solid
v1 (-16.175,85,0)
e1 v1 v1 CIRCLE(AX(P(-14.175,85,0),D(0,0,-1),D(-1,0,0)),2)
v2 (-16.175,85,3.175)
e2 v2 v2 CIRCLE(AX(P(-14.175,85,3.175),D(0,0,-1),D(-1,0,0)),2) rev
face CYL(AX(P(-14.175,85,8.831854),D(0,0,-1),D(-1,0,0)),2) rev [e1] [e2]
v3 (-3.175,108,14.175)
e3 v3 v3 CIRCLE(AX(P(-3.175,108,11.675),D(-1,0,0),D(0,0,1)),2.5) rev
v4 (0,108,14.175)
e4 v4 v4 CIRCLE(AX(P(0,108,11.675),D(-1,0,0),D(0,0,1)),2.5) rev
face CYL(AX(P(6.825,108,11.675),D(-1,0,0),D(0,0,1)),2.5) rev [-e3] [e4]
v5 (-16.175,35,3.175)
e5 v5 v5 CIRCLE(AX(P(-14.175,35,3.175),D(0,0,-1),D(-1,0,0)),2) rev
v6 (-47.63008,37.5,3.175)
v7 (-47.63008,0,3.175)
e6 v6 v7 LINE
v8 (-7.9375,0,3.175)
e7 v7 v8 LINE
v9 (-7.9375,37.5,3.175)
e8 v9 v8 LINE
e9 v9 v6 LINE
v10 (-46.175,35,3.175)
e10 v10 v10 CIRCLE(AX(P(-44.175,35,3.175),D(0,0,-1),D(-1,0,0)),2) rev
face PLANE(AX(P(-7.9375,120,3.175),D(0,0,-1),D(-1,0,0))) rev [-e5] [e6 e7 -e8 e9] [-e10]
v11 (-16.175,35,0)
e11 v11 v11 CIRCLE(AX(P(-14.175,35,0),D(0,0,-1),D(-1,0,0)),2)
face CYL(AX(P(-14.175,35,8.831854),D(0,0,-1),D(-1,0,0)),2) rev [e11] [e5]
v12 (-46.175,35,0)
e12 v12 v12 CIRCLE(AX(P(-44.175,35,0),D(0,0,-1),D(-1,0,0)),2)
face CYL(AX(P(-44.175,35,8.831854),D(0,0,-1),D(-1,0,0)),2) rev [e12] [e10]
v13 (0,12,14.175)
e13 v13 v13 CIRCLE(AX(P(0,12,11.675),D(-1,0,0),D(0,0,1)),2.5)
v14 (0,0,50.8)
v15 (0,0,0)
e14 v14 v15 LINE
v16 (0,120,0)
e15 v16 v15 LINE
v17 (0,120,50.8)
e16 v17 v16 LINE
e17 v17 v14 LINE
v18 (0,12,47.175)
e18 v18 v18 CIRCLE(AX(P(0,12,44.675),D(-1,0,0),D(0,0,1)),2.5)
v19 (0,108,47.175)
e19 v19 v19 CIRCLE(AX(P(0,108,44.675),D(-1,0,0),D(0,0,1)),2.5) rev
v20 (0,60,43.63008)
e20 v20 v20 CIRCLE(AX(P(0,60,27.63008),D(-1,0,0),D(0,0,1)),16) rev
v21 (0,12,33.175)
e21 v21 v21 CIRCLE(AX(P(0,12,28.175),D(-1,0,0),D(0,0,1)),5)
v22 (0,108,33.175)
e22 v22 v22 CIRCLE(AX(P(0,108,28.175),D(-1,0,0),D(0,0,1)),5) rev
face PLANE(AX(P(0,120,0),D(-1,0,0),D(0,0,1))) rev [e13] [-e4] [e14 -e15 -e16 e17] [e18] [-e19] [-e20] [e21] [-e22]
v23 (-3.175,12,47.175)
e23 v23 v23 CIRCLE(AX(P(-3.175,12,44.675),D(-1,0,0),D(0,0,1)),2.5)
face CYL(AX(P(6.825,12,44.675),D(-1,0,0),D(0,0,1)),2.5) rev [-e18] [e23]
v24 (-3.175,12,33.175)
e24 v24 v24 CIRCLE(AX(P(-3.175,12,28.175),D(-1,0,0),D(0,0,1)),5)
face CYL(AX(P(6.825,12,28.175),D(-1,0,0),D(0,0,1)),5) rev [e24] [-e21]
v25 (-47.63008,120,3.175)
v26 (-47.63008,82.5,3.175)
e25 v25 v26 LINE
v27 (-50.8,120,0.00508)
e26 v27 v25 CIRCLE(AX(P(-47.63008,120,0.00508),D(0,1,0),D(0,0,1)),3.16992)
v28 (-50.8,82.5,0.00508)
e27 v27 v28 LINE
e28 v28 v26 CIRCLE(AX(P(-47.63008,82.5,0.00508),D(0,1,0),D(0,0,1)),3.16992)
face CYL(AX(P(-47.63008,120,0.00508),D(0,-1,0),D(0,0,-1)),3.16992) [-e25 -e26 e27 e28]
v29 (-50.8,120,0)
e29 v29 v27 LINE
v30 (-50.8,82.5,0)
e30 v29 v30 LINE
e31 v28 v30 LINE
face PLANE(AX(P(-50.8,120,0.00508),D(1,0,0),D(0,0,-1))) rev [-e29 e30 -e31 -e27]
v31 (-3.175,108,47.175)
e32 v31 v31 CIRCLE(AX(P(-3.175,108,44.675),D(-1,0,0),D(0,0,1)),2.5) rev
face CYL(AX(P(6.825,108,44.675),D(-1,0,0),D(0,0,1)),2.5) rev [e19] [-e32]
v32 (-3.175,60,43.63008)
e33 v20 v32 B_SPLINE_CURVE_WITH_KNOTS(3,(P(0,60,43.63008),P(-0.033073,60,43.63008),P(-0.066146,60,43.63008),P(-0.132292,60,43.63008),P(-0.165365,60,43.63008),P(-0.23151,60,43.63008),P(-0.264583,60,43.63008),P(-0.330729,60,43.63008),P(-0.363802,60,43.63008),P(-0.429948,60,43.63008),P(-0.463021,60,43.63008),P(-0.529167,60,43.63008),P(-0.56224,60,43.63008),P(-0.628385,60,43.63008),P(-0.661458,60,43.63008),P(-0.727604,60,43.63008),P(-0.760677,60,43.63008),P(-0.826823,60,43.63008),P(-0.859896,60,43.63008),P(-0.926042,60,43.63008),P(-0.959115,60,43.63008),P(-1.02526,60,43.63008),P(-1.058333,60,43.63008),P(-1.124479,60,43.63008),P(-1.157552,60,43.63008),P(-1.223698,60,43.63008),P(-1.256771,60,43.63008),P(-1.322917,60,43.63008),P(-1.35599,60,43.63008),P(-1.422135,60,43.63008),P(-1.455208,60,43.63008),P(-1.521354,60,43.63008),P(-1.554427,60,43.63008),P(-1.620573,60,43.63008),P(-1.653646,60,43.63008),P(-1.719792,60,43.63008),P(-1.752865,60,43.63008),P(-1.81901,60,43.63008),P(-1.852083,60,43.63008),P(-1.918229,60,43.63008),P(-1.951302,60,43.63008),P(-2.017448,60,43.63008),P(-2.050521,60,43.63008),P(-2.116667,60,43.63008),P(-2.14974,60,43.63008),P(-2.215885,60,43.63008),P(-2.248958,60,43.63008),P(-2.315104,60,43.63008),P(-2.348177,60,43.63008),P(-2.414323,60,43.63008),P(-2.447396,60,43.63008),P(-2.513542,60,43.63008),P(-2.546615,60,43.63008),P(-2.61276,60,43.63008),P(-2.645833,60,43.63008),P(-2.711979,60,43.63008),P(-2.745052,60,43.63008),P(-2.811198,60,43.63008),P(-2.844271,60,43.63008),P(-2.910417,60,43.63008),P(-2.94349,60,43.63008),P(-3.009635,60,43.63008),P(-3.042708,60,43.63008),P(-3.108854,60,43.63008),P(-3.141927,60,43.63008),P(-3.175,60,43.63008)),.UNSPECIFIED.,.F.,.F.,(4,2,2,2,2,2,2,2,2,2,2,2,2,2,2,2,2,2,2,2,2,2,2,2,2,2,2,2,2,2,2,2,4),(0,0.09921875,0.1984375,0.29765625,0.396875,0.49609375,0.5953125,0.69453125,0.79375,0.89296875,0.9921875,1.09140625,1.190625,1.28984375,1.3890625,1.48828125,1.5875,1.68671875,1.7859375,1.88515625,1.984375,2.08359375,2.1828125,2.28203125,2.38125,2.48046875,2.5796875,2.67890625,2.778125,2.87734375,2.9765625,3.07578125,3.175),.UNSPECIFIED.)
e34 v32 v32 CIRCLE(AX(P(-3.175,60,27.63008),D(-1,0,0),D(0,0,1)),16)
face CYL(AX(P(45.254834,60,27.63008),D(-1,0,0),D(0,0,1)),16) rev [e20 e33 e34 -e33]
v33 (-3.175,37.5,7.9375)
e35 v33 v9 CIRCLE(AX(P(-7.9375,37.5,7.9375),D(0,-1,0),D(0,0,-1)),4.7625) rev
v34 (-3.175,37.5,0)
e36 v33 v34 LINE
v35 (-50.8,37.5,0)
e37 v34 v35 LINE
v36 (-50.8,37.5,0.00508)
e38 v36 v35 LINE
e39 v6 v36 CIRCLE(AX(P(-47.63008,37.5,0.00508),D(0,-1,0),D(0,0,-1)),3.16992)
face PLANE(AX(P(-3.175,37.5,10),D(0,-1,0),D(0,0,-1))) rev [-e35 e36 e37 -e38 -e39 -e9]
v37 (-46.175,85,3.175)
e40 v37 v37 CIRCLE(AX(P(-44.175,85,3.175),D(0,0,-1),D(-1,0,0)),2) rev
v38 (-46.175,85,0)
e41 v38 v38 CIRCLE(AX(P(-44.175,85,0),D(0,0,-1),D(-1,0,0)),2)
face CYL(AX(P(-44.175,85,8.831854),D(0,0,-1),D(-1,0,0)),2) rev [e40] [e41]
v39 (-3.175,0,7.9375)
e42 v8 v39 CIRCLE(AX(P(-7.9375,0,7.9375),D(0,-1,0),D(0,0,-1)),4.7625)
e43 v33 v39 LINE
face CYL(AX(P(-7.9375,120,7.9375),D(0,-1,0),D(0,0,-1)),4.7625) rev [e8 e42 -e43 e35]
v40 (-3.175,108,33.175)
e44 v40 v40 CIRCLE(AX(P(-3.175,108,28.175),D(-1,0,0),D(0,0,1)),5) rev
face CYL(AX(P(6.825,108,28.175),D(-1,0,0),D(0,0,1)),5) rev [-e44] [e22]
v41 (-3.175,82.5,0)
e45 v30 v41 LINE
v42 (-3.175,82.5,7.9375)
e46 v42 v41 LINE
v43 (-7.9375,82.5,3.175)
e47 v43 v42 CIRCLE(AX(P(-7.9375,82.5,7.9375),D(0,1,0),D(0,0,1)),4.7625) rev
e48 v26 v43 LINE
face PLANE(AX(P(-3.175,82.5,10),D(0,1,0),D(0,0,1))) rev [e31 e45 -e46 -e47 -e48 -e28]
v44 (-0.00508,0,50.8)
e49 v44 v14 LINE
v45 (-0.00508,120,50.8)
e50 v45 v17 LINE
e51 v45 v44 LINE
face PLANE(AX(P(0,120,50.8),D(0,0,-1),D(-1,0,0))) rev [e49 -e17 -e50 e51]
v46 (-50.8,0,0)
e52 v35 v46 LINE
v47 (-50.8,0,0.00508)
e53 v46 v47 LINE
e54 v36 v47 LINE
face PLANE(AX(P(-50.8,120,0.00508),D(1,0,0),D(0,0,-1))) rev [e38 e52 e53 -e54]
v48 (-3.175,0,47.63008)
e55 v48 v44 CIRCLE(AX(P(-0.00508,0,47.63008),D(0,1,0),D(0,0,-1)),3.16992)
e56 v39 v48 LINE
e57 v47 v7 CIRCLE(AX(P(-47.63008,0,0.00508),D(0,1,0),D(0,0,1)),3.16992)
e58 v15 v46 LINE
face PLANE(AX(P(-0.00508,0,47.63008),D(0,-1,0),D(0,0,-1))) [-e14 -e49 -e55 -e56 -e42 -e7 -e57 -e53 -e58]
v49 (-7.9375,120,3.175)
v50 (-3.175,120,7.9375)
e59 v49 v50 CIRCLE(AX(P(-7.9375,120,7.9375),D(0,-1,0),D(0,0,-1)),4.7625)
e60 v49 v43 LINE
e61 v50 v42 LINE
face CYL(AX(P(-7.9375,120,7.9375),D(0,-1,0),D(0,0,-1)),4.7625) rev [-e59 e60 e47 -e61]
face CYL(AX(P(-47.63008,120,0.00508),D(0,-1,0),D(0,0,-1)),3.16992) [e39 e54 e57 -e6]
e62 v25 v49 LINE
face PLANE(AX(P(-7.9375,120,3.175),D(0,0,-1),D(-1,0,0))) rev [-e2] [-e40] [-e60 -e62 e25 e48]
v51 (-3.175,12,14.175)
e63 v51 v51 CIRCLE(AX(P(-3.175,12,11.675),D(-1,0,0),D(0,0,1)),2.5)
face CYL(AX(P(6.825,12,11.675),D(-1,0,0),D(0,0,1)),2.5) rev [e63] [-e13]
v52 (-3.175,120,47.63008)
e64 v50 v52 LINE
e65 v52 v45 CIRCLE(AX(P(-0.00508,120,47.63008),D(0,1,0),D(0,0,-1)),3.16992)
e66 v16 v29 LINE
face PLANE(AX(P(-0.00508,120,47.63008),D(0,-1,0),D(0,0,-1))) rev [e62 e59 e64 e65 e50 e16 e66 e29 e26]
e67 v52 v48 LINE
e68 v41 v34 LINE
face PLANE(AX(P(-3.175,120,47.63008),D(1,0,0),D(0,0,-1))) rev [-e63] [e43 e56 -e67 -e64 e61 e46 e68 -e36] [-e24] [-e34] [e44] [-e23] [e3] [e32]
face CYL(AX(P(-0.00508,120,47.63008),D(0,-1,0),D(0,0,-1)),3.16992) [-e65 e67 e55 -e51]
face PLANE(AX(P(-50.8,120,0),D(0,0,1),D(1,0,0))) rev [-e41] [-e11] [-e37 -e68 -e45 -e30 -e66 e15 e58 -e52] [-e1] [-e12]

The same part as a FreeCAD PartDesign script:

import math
import FreeCAD as App
import Part
import Sketcher

V = App.Vector
Q = App.Units.Quantity

doc = App.newDocument("Part")
params = doc.addObject("Spreadsheet::Sheet", "Params")
for row, (alias, value) in enumerate([
    ("sketch1_width", "50.8 mm"),
    ("pad1_length", "120 mm"),
    ("sketch2_height", "45 mm"),
    ("pocket1_length", "10 mm"),
    ("sketch3_diameter", "10 mm"),
    ("sketch3_diameter2", "5 mm"),
    ("pocket2_length", "10 mm"),
    ("sketch4_diameter", "32 mm"),
    ("pocket3_length", "3.175 mm"),
    ("sketch5_diameter", "4 mm"),
    ("pocket4_length", "3.175 mm"),
], start=1):
    params.set(f"A{row}", alias)
    params.set(f"B{row}", "=" + value)
    params.setAlias(f"B{row}", alias)

body = doc.addObject("PartDesign::Body", "Body")

sketch1 = doc.addObject("Sketcher::SketchObject", "Sketch")
body.addObject(sketch1)
sketch1.AttachmentSupport = (doc.XZ_Plane, [""])
sketch1.MapMode = "FlatFace"
sketch1.addGeometry([
    Part.LineSegment(V(0, 50.8, 0), V(0, 0, 0)),
    Part.LineSegment(V(0, 0, 0), V(-50.8, 0, 0)),
    Part.LineSegment(V(-50.8, 0, 0), V(-50.8, 0.00508, 0)),
    Part.ArcOfCircle(Part.Circle(V(-47.63008, 0.00508, 0), V(0, 0, 1), 3.16992), math.radians(90), math.radians(180)),
    Part.LineSegment(V(-47.63008, 3.175, 0), V(-7.9375, 3.175, 0)),
    Part.ArcOfCircle(Part.Circle(V(-7.9375, 7.9375, 0), V(0, 0, 1), 4.7625), math.radians(-90), math.radians(0)),
    Part.LineSegment(V(-3.175, 7.9375, 0), V(-3.175, 47.63008, 0)),
    Part.ArcOfCircle(Part.Circle(V(-0.00508, 47.63008, 0), V(0, 0, 1), 3.16992), math.radians(90), math.radians(180)),
    Part.LineSegment(V(-0.00508, 50.8, 0), V(0, 50.8, 0)),
], False)
sketch1.addConstraint([
    Sketcher.Constraint("Coincident", 0, 2, 1, 1),
    Sketcher.Constraint("Coincident", 1, 2, 2, 1),
    Sketcher.Constraint("Tangent", 2, 2, 3, 2),
    Sketcher.Constraint("Tangent", 3, 1, 4, 1),
    Sketcher.Constraint("Tangent", 4, 2, 5, 1),
    Sketcher.Constraint("Tangent", 5, 2, 6, 1),
    Sketcher.Constraint("Tangent", 6, 2, 7, 2),
    Sketcher.Constraint("Tangent", 7, 1, 8, 1),
    Sketcher.Constraint("Coincident", 8, 2, 0, 1),
    Sketcher.Constraint("Vertical", 0),
    Sketcher.Constraint("Horizontal", 1),
    Sketcher.Constraint("Horizontal", 4),
    Sketcher.Constraint("Vertical", 6),
    Sketcher.Constraint("Coincident", 0, 2, -1, 1),
    Sketcher.Constraint("Equal", 3, 7),
    Sketcher.Constraint("Horizontal", 3, 3, 2, 2),
    Sketcher.Constraint("Equal", 1, 0),
    Sketcher.Constraint("Equal", 8, 2),
    Sketcher.Constraint("Equal", 4, 6),
    Sketcher.Constraint("DistanceX", 1, 2, 1, 1, Q("50.8 mm")),
    Sketcher.Constraint("Radius", 5, Q("4.7625 mm")),
    Sketcher.Constraint("Radius", 3, Q("3.16992 mm")),
    Sketcher.Constraint("DistanceY", -1, 1, 3, 1, Q("3.175 mm")),
])
sketch1.setExpression("Constraints[19]", "Params.sketch1_width")
pad1 = doc.addObject("PartDesign::Pad", "Pad")
body.addObject(pad1)
pad1.Profile = sketch1
pad1.setExpression("Length", "Params.pad1_length")
pad1.Reversed = True

sketch2 = doc.addObject("Sketcher::SketchObject", "Sketch001")
body.addObject(sketch2)
sketch2.AttachmentSupport = (doc.XY_Plane, [""])
sketch2.MapMode = "FlatFace"
sketch2.addGeometry([
    Part.LineSegment(V(-3.175, 82.5, 0), V(-3.175, 37.5, 0)),
    Part.LineSegment(V(-3.175, 37.5, 0), V(-50.8, 37.5, 0)),
    Part.LineSegment(V(-50.8, 37.5, 0), V(-50.8, 82.5, 0)),
    Part.LineSegment(V(-50.8, 82.5, 0), V(-3.175, 82.5, 0)),
], False)
sketch2.addConstraint([
    Sketcher.Constraint("Coincident", 0, 2, 1, 1),
    Sketcher.Constraint("Coincident", 1, 2, 2, 1),
    Sketcher.Constraint("Coincident", 2, 2, 3, 1),
    Sketcher.Constraint("Coincident", 3, 2, 0, 1),
    Sketcher.Constraint("Vertical", 0),
    Sketcher.Constraint("Horizontal", 1),
    Sketcher.Constraint("Vertical", 2),
    Sketcher.Constraint("Horizontal", 3),
    Sketcher.Constraint("DistanceY", 0, 2, 0, 1, Q("45 mm")),
    Sketcher.Constraint("DistanceY", -1, 1, 0, 2, Q("37.5 mm")),
    Sketcher.Constraint("DistanceX", 1, 2, -1, 1, Q("50.8 mm")),
    Sketcher.Constraint("DistanceX", 1, 2, 1, 1, Q("47.625 mm")),
])
sketch2.setExpression("Constraints[8]", "Params.sketch2_height")
pocket1 = doc.addObject("PartDesign::Pocket", "Pocket")
body.addObject(pocket1)
pocket1.Profile = sketch2
pocket1.setExpression("Length", "Params.pocket1_length")
pocket1.Reversed = True

sketch3 = doc.addObject("Sketcher::SketchObject", "Sketch002")
body.addObject(sketch3)
sketch3.AttachmentSupport = (doc.YZ_Plane, [""])
sketch3.MapMode = "FlatFace"
sketch3.AttachmentOffset = App.Placement(V(0, 0, -3.175), App.Rotation())
sketch3.addGeometry([
    Part.Circle(V(12, 28.175, 0), V(0, 0, 1), 5),
    Part.Circle(V(12, 11.675, 0), V(0, 0, 1), 2.5),
    Part.Circle(V(12, 44.675, 0), V(0, 0, 1), 2.5),
    Part.Circle(V(108, 44.675, 0), V(0, 0, 1), 2.5),
    Part.Circle(V(108, 28.175, 0), V(0, 0, 1), 5),
    Part.Circle(V(108, 11.675, 0), V(0, 0, 1), 2.5),
], False)
sketch3.addConstraint([
    Sketcher.Constraint("Equal", 1, 2),
    Sketcher.Constraint("Equal", 2, 3),
    Sketcher.Constraint("Equal", 0, 4),
    Sketcher.Constraint("Equal", 3, 5),
    Sketcher.Constraint("Horizontal", 2, 3, 3, 3),
    Sketcher.Constraint("Horizontal", 0, 3, 4, 3),
    Sketcher.Constraint("Horizontal", 1, 3, 5, 3),
    Sketcher.Constraint("Vertical", 0, 3, 1, 3),
    Sketcher.Constraint("Vertical", 1, 3, 2, 3),
    Sketcher.Constraint("Vertical", 3, 3, 4, 3),
    Sketcher.Constraint("Vertical", 4, 3, 5, 3),
    Sketcher.Constraint("Diameter", 0, Q("10 mm")),
    Sketcher.Constraint("Diameter", 1, Q("5 mm")),
    Sketcher.Constraint("DistanceX", -1, 1, 0, 3, Q("12 mm")),
    Sketcher.Constraint("DistanceX", -1, 1, 3, 3, Q("108 mm")),
    Sketcher.Constraint("DistanceY", 1, 3, 2, 3, Q("33 mm")),
    Sketcher.Constraint("DistanceY", 1, 3, 0, 3, Q("16.5 mm")),
    Sketcher.Constraint("DistanceY", -1, 1, 0, 3, Q("28.175 mm")),
])
sketch3.setExpression("Constraints[11]", "Params.sketch3_diameter")
sketch3.setExpression("Constraints[12]", "Params.sketch3_diameter2")
pocket2 = doc.addObject("PartDesign::Pocket", "Pocket001")
body.addObject(pocket2)
pocket2.Profile = sketch3
pocket2.setExpression("Length", "Params.pocket2_length")
pocket2.Reversed = True

sketch4 = doc.addObject("Sketcher::SketchObject", "Sketch003")
body.addObject(sketch4)
sketch4.AttachmentSupport = (doc.YZ_Plane, [""])
sketch4.MapMode = "FlatFace"
sketch4.AttachmentOffset = App.Placement(V(0, 0, -3.175), App.Rotation())
sketch4.addGeometry(Part.Circle(V(60, 27.63008, 0), V(0, 0, 1), 16), False)
sketch4.addConstraint([
    Sketcher.Constraint("Diameter", 0, Q("32 mm")),
    Sketcher.Constraint("DistanceX", -1, 1, 0, 3, Q("60 mm")),
    Sketcher.Constraint("DistanceY", -1, 1, 0, 3, Q("27.63008 mm")),
])
sketch4.setExpression("Constraints[0]", "Params.sketch4_diameter")
pocket3 = doc.addObject("PartDesign::Pocket", "Pocket002")
body.addObject(pocket3)
pocket3.Profile = sketch4
pocket3.setExpression("Length", "Params.pocket3_length")
pocket3.Reversed = True

sketch5 = doc.addObject("Sketcher::SketchObject", "Sketch004")
body.addObject(sketch5)
sketch5.AttachmentSupport = (doc.XY_Plane, [""])
sketch5.MapMode = "FlatFace"
sketch5.addGeometry([
    Part.Circle(V(-14.175, 35, 0), V(0, 0, 1), 2),
    Part.Circle(V(-14.175, 85, 0), V(0, 0, 1), 2),
    Part.Circle(V(-44.175, 85, 0), V(0, 0, 1), 2),
    Part.Circle(V(-44.175, 35, 0), V(0, 0, 1), 2),
], False)
sketch5.addConstraint([
    Sketcher.Constraint("Equal", 0, 1),
    Sketcher.Constraint("Equal", 1, 2),
    Sketcher.Constraint("Equal", 2, 3),
    Sketcher.Constraint("Horizontal", 1, 3, 2, 3),
    Sketcher.Constraint("Horizontal", 0, 3, 3, 3),
    Sketcher.Constraint("Vertical", 0, 3, 1, 3),
    Sketcher.Constraint("Vertical", 2, 3, 3, 3),
    Sketcher.Constraint("Diameter", 0, Q("4 mm")),
    Sketcher.Constraint("DistanceY", -1, 1, 0, 3, Q("35 mm")),
    Sketcher.Constraint("DistanceY", -1, 1, 1, 3, Q("85 mm")),
    Sketcher.Constraint("DistanceX", 2, 3, 1, 3, Q("30 mm")),
    Sketcher.Constraint("DistanceX", 0, 3, -1, 1, Q("14.175 mm")),
])
sketch5.setExpression("Constraints[7]", "Params.sketch5_diameter")
pocket4 = doc.addObject("PartDesign::Pocket", "Pocket003")
body.addObject(pocket4)
pocket4.Profile = sketch5
pocket4.setExpression("Length", "Params.pocket4_length")
pocket4.Reversed = True

doc.recompute()
